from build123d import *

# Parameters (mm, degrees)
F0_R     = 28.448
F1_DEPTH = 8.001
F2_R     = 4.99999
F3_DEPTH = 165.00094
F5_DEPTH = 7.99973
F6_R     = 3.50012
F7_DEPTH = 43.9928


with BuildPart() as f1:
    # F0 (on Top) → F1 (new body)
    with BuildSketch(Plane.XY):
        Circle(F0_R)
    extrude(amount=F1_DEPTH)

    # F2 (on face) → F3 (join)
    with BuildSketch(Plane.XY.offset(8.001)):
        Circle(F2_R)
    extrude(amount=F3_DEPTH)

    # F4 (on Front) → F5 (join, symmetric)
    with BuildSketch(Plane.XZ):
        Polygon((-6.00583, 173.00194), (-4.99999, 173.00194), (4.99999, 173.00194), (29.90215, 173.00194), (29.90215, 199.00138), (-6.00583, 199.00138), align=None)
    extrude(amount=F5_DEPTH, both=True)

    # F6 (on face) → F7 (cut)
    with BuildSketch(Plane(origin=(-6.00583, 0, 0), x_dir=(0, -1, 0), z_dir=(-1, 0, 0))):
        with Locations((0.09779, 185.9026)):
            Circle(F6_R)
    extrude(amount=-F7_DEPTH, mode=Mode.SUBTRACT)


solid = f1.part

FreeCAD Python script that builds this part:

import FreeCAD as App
import Part
import Sketcher

V = App.Vector
Q = App.Units.Quantity

doc = App.newDocument("Part")
body = doc.addObject("PartDesign::Body", "Body")

# Sketch on XY plane
sketch1 = body.newObject("Sketcher::SketchObject", "Sketch")
sketch1.AttachmentSupport = (doc.getObject("XY_Plane"), [""])
sketch1.MapMode = "FlatFace"
sketch1.addGeometry(Part.Circle(V(0, 0, 0), V(0, 0, 1), 28.448), False)
sketch1.addConstraint([
    Sketcher.Constraint("Coincident", 0, 3, -1, 1),
    Sketcher.Constraint("Diameter", 0, Q("2.24 in")),
])
pad1 = body.newObject("PartDesign::Pad", "Pad")
pad1.Profile = sketch1
pad1.Length = Q("0.315 in")

# Sketch on XY plane
sketch2 = body.newObject("Sketcher::SketchObject", "Sketch001")
sketch2.AttachmentSupport = (doc.getObject("XY_Plane"), [""])
sketch2.MapMode = "FlatFace"
sketch2.AttachmentOffset = App.Placement(V(0, 0, 0.315 * 25.4), App.Rotation())
sketch2.addGeometry(Part.Circle(V(0, 0, 0), V(0, 0, 1), 4.99999), False)
sketch2.addConstraint([
    Sketcher.Constraint("Coincident", 0, 3, -1, 1),
    Sketcher.Constraint("Diameter", 0, Q("0.3937 in")),
])
pad2 = body.newObject("PartDesign::Pad", "Pad001")
pad2.Profile = sketch2
pad2.Length = Q("6.4961 in")

# Sketch on XZ plane
sketch3 = body.newObject("Sketcher::SketchObject", "Sketch002")
sketch3.AttachmentSupport = (doc.getObject("XZ_Plane"), [""])
sketch3.MapMode = "FlatFace"
sketch3.addGeometry([
    Part.LineSegment(V(-6.00583, 173.00194, 0), V(29.90215, 173.00194, 0)),
    Part.LineSegment(V(29.90215, 173.00194, 0), V(29.90215, 199.00138, 0)),
    Part.LineSegment(V(29.90215, 199.00138, 0), V(-6.00583, 199.00138, 0)),
    Part.LineSegment(V(-6.00583, 199.00138, 0), V(-6.00583, 173.00194, 0)),
], False)
sketch3.addConstraint([
    Sketcher.Constraint("Coincident", 0, 2, 1, 1),
    Sketcher.Constraint("Coincident", 1, 2, 2, 1),
    Sketcher.Constraint("Coincident", 2, 2, 3, 1),
    Sketcher.Constraint("Coincident", 3, 2, 0, 1),
    Sketcher.Constraint("Horizontal", 0),
    Sketcher.Constraint("Vertical", 1),
    Sketcher.Constraint("Horizontal", 2),
    Sketcher.Constraint("Vertical", 3),
    Sketcher.Constraint("DistanceX", 0, 1, 0, 2, Q("1.4137 in")),
    Sketcher.Constraint("DistanceY", 1, 1, 1, 2, Q("1.0236 in")),
    Sketcher.Constraint("DistanceY", -1, 1, 0, 2, Q("6.8111 in")),
    Sketcher.Constraint("DistanceX", -1, 1, 0, 2, 29.90215),
])
pad3 = body.newObject("PartDesign::Pad", "Pad002")
pad3.Profile = sketch3
pad3.Length = Q("0.6299 in")
pad3.Midplane = True

# Sketch on YZ plane
sketch4 = body.newObject("Sketcher::SketchObject", "Sketch003")
sketch4.AttachmentSupport = (doc.getObject("YZ_Plane"), [""])
sketch4.MapMode = "FlatFace"
sketch4.AttachmentOffset = App.Placement(V(0, 0, -6.00583), App.Rotation())
sketch4.addGeometry(Part.Circle(V(-0.09779, 185.9026, 0), V(0, 0, 1), 3.50012), False)
sketch4.addConstraint([
    Sketcher.Constraint("Diameter", 0, Q("0.2756 in")),
    Sketcher.Constraint("DistanceY", -1, 1, 0, 3, Q("7.319 in")),
    Sketcher.Constraint("DistanceX", 0, 3, -1, 1, 0.09779),
])
pocket1 = body.newObject("PartDesign::Pocket", "Pocket")
pocket1.Profile = sketch4
pocket1.Length = Q("1.732 in")
pocket1.Reversed = True

doc.recompute()
